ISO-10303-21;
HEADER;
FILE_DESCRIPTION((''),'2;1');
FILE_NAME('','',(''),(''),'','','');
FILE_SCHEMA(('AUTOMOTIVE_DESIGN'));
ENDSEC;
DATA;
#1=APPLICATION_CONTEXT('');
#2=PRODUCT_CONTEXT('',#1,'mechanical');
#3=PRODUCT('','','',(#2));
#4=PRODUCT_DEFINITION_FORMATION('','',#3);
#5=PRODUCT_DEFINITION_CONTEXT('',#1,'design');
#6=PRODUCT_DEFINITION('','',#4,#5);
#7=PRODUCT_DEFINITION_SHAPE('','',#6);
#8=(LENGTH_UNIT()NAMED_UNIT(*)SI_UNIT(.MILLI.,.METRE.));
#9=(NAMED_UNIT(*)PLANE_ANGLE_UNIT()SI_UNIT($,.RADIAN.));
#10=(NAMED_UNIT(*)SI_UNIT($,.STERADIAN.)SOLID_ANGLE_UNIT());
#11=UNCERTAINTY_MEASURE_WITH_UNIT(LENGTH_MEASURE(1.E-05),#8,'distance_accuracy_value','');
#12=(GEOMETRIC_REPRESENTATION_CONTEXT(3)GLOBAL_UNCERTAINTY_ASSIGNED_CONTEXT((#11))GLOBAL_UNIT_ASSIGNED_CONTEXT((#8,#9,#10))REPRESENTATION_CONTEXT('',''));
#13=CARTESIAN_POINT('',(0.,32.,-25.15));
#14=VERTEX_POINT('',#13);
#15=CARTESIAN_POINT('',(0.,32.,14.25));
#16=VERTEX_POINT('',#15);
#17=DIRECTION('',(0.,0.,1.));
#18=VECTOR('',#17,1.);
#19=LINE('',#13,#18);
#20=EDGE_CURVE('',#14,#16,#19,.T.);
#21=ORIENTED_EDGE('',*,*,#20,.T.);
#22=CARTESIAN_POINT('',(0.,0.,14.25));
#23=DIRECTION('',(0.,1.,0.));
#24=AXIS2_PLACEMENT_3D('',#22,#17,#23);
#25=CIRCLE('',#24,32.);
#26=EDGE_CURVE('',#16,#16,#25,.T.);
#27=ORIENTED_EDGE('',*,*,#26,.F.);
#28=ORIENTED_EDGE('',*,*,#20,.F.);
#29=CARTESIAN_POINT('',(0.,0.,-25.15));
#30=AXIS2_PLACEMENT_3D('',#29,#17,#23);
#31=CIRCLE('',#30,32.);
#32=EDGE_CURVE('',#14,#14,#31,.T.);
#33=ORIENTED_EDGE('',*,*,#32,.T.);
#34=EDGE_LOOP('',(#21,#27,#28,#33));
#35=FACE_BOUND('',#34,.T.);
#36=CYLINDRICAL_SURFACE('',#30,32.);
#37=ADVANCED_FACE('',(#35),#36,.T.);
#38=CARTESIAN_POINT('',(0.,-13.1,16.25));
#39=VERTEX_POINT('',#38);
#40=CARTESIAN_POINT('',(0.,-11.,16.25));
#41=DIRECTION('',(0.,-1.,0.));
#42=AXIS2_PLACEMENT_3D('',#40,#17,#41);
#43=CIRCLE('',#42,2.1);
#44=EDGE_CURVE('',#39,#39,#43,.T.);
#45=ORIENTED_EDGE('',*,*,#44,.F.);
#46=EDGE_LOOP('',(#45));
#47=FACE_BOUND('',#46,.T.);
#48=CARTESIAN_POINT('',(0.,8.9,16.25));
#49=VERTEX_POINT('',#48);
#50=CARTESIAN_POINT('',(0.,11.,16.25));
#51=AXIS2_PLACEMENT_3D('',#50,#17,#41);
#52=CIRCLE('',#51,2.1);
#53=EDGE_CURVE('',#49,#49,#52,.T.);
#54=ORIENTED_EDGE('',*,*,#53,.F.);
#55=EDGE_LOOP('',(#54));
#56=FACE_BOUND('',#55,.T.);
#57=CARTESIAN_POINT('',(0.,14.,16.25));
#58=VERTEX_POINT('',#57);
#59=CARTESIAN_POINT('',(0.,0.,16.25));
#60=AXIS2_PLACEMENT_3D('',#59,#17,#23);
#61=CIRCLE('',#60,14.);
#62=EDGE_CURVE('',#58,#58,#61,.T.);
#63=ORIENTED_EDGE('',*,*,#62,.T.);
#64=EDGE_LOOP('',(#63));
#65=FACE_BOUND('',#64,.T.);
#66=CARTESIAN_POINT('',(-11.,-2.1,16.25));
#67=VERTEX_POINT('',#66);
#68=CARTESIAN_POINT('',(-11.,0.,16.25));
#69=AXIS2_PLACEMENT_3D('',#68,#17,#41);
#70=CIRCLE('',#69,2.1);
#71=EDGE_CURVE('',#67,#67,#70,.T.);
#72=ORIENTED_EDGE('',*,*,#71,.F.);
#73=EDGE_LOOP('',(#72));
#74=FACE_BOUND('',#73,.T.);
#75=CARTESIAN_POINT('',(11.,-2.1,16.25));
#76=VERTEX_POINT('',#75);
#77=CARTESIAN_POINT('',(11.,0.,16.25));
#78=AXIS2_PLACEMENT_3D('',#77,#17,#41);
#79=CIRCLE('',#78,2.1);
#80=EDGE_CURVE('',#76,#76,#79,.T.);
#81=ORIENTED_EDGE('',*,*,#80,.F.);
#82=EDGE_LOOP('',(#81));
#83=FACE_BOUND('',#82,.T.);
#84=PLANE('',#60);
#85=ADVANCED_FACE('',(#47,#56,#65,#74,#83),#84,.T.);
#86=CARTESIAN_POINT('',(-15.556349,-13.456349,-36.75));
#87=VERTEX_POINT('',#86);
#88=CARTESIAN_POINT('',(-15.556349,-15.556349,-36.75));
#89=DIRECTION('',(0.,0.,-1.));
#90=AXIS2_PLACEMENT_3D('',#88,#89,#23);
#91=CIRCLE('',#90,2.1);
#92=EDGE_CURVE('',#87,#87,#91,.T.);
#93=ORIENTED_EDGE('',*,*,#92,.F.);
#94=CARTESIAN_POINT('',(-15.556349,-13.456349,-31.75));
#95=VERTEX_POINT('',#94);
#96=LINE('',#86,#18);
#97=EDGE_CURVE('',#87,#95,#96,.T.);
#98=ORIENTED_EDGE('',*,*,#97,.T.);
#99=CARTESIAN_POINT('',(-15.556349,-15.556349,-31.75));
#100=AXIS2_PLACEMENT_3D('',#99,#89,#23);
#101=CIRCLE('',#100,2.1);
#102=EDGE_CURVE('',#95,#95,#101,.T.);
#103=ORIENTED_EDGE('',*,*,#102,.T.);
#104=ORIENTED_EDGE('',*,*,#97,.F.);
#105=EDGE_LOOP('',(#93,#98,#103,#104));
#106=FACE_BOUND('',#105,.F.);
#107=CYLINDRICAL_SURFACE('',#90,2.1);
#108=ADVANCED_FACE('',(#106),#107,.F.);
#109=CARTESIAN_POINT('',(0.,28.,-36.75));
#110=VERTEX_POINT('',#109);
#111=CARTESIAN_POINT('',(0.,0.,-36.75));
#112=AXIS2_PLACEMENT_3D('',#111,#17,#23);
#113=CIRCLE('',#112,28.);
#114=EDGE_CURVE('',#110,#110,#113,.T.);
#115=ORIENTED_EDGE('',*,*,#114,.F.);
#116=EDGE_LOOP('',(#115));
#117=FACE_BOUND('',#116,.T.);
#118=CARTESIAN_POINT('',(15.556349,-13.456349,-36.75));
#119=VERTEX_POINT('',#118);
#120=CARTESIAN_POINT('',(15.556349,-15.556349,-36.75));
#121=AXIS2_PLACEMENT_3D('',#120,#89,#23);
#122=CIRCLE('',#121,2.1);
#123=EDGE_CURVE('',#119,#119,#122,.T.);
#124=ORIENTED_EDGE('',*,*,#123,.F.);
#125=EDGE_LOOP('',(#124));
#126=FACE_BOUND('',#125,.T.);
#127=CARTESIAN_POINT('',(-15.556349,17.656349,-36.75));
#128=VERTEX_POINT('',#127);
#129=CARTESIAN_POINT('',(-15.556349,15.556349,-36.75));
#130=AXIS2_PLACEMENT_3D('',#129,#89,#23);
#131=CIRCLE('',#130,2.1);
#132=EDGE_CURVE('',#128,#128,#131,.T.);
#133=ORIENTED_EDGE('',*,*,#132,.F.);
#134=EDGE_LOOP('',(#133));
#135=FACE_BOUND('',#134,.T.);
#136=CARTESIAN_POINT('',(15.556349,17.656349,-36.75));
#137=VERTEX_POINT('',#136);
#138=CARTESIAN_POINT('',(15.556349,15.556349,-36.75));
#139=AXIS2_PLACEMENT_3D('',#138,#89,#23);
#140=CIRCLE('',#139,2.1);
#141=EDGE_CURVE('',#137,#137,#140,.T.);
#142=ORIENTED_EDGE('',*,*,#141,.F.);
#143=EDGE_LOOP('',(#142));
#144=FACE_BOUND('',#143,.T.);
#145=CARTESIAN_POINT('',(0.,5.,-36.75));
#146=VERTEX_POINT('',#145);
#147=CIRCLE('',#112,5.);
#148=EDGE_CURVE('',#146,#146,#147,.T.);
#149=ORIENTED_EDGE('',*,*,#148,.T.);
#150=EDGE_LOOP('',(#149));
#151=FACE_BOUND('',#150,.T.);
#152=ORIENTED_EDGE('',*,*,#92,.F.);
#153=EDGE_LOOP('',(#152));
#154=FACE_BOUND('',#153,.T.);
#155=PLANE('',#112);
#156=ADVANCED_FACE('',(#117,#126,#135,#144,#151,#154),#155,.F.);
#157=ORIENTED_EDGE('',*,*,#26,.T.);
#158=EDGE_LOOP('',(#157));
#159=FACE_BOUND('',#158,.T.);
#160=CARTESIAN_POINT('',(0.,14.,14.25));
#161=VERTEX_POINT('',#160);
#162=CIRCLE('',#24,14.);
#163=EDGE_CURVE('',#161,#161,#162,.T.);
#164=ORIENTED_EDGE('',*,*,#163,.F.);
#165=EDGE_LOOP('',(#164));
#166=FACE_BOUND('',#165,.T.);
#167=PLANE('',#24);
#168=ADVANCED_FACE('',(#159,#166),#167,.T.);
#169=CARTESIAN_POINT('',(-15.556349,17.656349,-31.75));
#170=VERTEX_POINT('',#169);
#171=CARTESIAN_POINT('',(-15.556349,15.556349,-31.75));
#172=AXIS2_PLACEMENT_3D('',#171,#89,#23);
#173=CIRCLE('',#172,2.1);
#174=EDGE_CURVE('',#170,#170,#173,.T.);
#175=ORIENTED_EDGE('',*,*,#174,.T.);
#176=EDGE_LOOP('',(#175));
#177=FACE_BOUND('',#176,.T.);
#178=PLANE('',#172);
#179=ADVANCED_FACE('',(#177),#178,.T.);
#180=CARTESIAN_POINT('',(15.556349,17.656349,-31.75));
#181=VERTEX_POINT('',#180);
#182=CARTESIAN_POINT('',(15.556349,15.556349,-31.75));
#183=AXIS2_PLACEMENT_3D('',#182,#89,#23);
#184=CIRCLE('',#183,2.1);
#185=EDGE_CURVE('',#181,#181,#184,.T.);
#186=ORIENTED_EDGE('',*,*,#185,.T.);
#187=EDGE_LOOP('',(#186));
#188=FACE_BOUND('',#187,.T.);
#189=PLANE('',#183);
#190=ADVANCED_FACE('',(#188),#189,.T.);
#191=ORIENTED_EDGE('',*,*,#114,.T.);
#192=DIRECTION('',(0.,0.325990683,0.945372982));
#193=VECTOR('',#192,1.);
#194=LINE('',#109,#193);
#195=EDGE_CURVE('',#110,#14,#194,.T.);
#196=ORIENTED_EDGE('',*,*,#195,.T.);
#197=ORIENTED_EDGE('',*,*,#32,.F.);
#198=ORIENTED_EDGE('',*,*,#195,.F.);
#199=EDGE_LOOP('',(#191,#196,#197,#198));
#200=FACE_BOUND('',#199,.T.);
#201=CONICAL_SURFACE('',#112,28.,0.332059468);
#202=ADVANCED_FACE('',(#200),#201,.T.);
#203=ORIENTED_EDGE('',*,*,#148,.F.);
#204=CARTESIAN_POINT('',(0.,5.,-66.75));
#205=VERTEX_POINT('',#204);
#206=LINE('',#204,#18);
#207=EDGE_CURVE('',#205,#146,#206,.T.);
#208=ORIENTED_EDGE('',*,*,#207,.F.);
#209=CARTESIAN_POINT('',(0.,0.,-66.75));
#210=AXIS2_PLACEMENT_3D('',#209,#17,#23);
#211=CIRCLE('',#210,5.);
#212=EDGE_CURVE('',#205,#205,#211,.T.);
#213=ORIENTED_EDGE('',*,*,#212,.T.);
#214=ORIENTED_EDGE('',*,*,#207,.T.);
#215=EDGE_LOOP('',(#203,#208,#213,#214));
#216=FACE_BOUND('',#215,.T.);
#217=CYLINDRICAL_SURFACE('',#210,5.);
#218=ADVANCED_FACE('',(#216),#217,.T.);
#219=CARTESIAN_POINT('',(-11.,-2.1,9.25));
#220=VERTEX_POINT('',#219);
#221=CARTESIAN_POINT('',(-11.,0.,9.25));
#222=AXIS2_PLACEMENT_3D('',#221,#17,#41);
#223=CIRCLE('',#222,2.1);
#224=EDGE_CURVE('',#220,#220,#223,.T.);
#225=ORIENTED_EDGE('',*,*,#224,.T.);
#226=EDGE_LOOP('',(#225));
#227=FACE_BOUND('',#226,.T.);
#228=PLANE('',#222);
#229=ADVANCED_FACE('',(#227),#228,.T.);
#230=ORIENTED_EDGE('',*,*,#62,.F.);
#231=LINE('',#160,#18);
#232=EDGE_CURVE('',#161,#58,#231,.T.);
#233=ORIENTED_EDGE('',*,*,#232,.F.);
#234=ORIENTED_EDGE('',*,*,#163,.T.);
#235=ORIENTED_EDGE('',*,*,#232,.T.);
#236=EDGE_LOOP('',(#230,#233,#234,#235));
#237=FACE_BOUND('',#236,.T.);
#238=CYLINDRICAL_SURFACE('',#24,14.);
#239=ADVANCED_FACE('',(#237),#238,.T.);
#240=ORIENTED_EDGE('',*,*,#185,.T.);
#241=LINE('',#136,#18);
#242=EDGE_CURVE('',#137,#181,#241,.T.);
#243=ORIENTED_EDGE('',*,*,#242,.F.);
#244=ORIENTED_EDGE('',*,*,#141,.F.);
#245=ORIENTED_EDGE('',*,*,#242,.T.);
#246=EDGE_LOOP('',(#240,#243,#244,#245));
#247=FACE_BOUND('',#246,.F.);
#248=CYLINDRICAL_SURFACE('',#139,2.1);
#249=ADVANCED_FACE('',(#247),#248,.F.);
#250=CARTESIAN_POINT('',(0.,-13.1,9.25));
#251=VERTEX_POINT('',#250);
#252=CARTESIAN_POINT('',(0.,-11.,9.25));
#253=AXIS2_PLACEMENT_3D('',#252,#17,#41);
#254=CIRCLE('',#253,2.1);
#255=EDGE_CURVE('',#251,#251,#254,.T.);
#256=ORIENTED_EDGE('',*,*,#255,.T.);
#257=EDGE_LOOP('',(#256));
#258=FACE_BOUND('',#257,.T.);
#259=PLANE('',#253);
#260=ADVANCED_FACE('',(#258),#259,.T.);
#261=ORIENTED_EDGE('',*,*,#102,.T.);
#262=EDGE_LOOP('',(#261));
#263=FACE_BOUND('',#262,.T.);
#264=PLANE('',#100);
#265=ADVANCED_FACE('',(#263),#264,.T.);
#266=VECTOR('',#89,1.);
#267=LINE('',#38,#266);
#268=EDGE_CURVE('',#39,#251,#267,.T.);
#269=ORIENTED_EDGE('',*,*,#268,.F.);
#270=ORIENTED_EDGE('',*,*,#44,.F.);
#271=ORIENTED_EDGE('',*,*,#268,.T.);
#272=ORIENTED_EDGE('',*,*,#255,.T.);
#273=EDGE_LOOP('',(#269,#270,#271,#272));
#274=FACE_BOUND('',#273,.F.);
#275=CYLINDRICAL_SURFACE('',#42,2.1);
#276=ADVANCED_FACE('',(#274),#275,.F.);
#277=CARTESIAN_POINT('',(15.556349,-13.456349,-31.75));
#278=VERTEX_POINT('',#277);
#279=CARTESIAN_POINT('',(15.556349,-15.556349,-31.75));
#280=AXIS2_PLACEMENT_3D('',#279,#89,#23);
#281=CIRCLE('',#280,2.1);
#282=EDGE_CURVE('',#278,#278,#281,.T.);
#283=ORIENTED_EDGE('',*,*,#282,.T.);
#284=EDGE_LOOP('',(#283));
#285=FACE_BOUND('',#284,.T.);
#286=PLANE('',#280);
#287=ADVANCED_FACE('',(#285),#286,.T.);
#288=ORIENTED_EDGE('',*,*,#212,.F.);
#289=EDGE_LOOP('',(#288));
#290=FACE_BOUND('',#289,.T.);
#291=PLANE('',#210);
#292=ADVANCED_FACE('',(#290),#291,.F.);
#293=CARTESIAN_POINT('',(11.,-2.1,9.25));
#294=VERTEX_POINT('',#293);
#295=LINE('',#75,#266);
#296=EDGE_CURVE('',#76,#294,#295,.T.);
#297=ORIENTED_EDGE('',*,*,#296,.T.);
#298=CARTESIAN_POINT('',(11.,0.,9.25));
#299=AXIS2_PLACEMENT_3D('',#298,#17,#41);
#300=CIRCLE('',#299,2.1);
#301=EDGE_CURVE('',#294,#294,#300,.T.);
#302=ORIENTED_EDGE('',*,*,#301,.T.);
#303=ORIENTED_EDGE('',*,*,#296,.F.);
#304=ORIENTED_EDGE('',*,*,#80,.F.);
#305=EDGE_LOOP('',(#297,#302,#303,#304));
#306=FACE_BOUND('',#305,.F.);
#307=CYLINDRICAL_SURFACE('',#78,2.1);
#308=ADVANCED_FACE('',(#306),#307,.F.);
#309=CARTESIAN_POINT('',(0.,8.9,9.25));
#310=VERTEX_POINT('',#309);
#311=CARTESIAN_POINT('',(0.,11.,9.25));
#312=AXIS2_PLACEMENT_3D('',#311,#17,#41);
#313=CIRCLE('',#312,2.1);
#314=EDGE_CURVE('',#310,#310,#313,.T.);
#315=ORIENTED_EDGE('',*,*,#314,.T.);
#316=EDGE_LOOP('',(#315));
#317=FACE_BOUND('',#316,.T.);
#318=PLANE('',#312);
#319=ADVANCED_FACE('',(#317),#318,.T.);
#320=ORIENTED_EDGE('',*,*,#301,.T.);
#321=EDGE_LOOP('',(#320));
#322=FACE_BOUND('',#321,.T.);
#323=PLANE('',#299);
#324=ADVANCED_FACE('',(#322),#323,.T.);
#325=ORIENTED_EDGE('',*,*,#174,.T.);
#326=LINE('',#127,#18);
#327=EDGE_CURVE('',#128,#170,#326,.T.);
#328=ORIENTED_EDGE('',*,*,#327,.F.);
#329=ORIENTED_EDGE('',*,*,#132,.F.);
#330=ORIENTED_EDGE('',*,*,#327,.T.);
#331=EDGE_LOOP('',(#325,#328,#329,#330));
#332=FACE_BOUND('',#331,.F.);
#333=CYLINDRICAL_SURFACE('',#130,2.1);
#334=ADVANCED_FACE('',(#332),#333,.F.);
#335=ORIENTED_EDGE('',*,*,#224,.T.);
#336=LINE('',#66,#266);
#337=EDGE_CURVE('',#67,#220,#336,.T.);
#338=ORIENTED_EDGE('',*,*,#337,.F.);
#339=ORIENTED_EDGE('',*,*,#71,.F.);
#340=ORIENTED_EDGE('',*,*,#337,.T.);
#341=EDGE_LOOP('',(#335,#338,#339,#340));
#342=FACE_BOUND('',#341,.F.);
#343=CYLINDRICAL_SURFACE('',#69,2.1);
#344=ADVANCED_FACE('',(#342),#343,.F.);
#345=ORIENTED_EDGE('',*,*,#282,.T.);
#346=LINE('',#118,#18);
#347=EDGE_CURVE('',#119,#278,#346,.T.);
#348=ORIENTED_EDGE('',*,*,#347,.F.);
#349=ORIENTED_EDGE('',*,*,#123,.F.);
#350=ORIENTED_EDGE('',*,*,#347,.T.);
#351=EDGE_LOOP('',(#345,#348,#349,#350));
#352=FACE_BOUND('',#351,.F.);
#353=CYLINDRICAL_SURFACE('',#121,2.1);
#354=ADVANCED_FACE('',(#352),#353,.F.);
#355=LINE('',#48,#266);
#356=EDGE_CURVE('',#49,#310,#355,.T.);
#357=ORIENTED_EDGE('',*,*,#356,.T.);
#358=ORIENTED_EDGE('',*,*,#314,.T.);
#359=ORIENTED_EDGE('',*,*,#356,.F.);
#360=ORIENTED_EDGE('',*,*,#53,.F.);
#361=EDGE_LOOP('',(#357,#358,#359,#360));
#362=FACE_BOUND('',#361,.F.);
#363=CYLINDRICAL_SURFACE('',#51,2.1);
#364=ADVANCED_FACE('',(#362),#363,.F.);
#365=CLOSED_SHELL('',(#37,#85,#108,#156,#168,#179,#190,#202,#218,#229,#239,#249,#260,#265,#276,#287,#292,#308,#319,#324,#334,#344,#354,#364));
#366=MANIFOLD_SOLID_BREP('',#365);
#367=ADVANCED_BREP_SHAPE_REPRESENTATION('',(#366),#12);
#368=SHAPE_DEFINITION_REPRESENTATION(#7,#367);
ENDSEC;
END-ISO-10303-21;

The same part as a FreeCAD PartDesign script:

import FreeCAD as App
import Part
import Sketcher
from FreeCAD import Vector
Q = App.Units.Quantity

doc = App.newDocument("Part")
body = doc.addObject("PartDesign::Body", "Body")

# Sketch on XY plane
sketch1 = body.newObject("Sketcher::SketchObject", "Sketch")
sketch1.AttachmentSupport = (doc.getObject("XY_Plane"), [""])
sketch1.MapMode = "FlatFace"
sketch1.addGeometry([
    Part.LineSegment(Vector(28, 0, 0), Vector(32, 11.6, 0)),  # 0
    Part.LineSegment(Vector(32, 11.6, 0), Vector(32, 51, 0)),  # 1
    Part.LineSegment(Vector(32, 51, 0), Vector(14, 51, 0)),  # 2
    Part.LineSegment(Vector(14, 51, 0), Vector(14, 53, 0)),  # 3
    Part.LineSegment(Vector(14, 53, 0), Vector(0, 53, 0)),  # 4
    Part.LineSegment(Vector(0, 53, 0), Vector(0, -30, 0)),  # 5
    Part.LineSegment(Vector(0, -30, 0), Vector(5, -30, 0)),  # 6
    Part.LineSegment(Vector(5, -30, 0), Vector(5, 0, 0)),  # 7
    Part.LineSegment(Vector(5, 0, 0), Vector(28, 0, 0)),  # 8
], False)
sketch1.addConstraint([
    Sketcher.Constraint("Coincident", 0, 2, 1, 1),
    Sketcher.Constraint("Coincident", 1, 2, 2, 1),
    Sketcher.Constraint("Coincident", 2, 2, 3, 1),
    Sketcher.Constraint("Coincident", 3, 2, 4, 1),
    Sketcher.Constraint("Coincident", 4, 2, 5, 1),
    Sketcher.Constraint("Coincident", 5, 2, 6, 1),
    Sketcher.Constraint("Coincident", 6, 2, 7, 1),
    Sketcher.Constraint("Coincident", 7, 2, 8, 1),
    Sketcher.Constraint("Coincident", 8, 2, 0, 1),
    Sketcher.Constraint("Vertical", 1),
    Sketcher.Constraint("Horizontal", 2),
    Sketcher.Constraint("Vertical", 3),
    Sketcher.Constraint("Horizontal", 4),
    Sketcher.Constraint("Vertical", 5),
    Sketcher.Constraint("Horizontal", 6),
    Sketcher.Constraint("Vertical", 7),
    Sketcher.Constraint("Horizontal", 8),
    Sketcher.Constraint("PointOnObject", 4, 2, -2),
    Sketcher.Constraint("PointOnObject", 7, 2, -1),
    Sketcher.Constraint("DistanceX", 2, 2, 2, 1, Q("18 mm")),
    Sketcher.Constraint("DistanceX", 4, 2, 4, 1, Q("14 mm")),
    Sketcher.Constraint("DistanceX", 6, 1, 6, 2, Q("5 mm")),
    Sketcher.Constraint("DistanceX", 8, 1, 8, 2, Q("23 mm")),
    Sketcher.Constraint("DistanceY", 3, 1, 3, 2, Q("2 mm")),
    Sketcher.Constraint("DistanceY", 5, 2, 5, 1, Q("83 mm")),
    Sketcher.Constraint("DistanceY", 7, 1, 7, 2, Q("30 mm")),
    Sketcher.Constraint("DistanceY", 1, 1, 1, 2, Q("39.4 mm")),
])
revolution = body.newObject("PartDesign::Revolution", "Revolution")
revolution.Profile = sketch1
revolution.ReferenceAxis = (sketch1, ["V_Axis"])
revolution.Angle = 360

# Sketch on XZ plane
sketch2 = body.newObject("Sketcher::SketchObject", "Sketch001")
sketch2.AttachmentSupport = (doc.getObject("XZ_Plane"), [""])
sketch2.MapMode = "FlatFace"
sketch2.addGeometry([
    Part.Circle(Vector(-15.6, 15.6, 0), Vector(0, 0, 1), 2.1),
    Part.Circle(Vector(15.6, 15.6, 0), Vector(0, 0, 1), 2.1),
    Part.Circle(Vector(15.6, -15.6, 0), Vector(0, 0, 1), 2.1),
    Part.Circle(Vector(-15.6, -15.6, 0), Vector(0, 0, 1), 2.1),
], False)
sketch2.addConstraint([
    Sketcher.Constraint("Equal", 0, 1),
    Sketcher.Constraint("Equal", 1, 2),
    Sketcher.Constraint("Equal", 2, 3),
    Sketcher.Constraint("Symmetric", 0, 3, 2, 3, -1, 1),
    Sketcher.Constraint("Symmetric", 1, 3, 3, 3, -1, 1),
    Sketcher.Constraint("Symmetric", 0, 3, 1, 3, -2),
    Sketcher.Constraint("Diameter", 0, Q("4.2 mm")),
    Sketcher.Constraint("DistanceX", 0, 3, 1, 3, Q("31.112698 mm")),
    Sketcher.Constraint("DistanceY", 2, 3, 1, 3, Q("31.112698 mm")),
])
pocket1 = body.newObject("PartDesign::Pocket", "Pocket")
pocket1.Profile = sketch2
pocket1.Length = 5

# Sketch on XZ plane
sketch3 = body.newObject("Sketcher::SketchObject", "Sketch002")
sketch3.AttachmentSupport = (doc.getObject("XZ_Plane"), [""])
sketch3.MapMode = "FlatFace"
sketch3.AttachmentOffset = App.Placement(Vector(0, 0, -53), App.Rotation())
sketch3.addGeometry([
    Part.Circle(Vector(11, 0, 0), Vector(0, 0, 1), 2.1),
    Part.Circle(Vector(0, -11, 0), Vector(0, 0, 1), 2.1),
    Part.Circle(Vector(-11, 0, 0), Vector(0, 0, 1), 2.1),
    Part.Circle(Vector(0, 11, 0), Vector(0, 0, 1), 2.1),
], False)
sketch3.addConstraint([
    Sketcher.Constraint("Equal", 0, 1),
    Sketcher.Constraint("Equal", 1, 2),
    Sketcher.Constraint("Equal", 2, 3),
    Sketcher.Constraint("Symmetric", 0, 3, 2, 3, -1, 1),
    Sketcher.Constraint("Symmetric", 1, 3, 3, 3, -1, 1),
    Sketcher.Constraint("PointOnObject", 0, 3, -1),
    Sketcher.Constraint("PointOnObject", 1, 3, -2),
    Sketcher.Constraint("Diameter", 0, Q("4.2 mm")),
    Sketcher.Constraint("DistanceX", -1, 1, 0, 3, Q("11 mm")),
    Sketcher.Constraint("DistanceY", 1, 3, -1, 1, Q("11 mm")),
])
pocket2 = body.newObject("PartDesign::Pocket", "Pocket001")
pocket2.Profile = sketch3
pocket2.Length = 7
pocket2.Reversed = True
body2 = doc.addObject("PartDesign::Body", "Body001")
doc.recompute()

body.Placement = App.Placement(Vector(0, 0, 0), App.Rotation(Vector(1, 0, 0), 90))
boolean = body2.newObject("PartDesign::Boolean", "Boolean")
boolean.Type = "Fuse"
boolean.addObjects([body])
body3 = doc.addObject("PartDesign::Body", "Body002")
doc.recompute()

body2.Placement = App.Placement(Vector(0, 0, -36.75), App.Rotation(Vector(0, 0, 1), 90))
boolean2 = body3.newObject("PartDesign::Boolean", "Boolean001")
boolean2.Type = "Fuse"
boolean2.addObjects([body2])

doc.recompute()
